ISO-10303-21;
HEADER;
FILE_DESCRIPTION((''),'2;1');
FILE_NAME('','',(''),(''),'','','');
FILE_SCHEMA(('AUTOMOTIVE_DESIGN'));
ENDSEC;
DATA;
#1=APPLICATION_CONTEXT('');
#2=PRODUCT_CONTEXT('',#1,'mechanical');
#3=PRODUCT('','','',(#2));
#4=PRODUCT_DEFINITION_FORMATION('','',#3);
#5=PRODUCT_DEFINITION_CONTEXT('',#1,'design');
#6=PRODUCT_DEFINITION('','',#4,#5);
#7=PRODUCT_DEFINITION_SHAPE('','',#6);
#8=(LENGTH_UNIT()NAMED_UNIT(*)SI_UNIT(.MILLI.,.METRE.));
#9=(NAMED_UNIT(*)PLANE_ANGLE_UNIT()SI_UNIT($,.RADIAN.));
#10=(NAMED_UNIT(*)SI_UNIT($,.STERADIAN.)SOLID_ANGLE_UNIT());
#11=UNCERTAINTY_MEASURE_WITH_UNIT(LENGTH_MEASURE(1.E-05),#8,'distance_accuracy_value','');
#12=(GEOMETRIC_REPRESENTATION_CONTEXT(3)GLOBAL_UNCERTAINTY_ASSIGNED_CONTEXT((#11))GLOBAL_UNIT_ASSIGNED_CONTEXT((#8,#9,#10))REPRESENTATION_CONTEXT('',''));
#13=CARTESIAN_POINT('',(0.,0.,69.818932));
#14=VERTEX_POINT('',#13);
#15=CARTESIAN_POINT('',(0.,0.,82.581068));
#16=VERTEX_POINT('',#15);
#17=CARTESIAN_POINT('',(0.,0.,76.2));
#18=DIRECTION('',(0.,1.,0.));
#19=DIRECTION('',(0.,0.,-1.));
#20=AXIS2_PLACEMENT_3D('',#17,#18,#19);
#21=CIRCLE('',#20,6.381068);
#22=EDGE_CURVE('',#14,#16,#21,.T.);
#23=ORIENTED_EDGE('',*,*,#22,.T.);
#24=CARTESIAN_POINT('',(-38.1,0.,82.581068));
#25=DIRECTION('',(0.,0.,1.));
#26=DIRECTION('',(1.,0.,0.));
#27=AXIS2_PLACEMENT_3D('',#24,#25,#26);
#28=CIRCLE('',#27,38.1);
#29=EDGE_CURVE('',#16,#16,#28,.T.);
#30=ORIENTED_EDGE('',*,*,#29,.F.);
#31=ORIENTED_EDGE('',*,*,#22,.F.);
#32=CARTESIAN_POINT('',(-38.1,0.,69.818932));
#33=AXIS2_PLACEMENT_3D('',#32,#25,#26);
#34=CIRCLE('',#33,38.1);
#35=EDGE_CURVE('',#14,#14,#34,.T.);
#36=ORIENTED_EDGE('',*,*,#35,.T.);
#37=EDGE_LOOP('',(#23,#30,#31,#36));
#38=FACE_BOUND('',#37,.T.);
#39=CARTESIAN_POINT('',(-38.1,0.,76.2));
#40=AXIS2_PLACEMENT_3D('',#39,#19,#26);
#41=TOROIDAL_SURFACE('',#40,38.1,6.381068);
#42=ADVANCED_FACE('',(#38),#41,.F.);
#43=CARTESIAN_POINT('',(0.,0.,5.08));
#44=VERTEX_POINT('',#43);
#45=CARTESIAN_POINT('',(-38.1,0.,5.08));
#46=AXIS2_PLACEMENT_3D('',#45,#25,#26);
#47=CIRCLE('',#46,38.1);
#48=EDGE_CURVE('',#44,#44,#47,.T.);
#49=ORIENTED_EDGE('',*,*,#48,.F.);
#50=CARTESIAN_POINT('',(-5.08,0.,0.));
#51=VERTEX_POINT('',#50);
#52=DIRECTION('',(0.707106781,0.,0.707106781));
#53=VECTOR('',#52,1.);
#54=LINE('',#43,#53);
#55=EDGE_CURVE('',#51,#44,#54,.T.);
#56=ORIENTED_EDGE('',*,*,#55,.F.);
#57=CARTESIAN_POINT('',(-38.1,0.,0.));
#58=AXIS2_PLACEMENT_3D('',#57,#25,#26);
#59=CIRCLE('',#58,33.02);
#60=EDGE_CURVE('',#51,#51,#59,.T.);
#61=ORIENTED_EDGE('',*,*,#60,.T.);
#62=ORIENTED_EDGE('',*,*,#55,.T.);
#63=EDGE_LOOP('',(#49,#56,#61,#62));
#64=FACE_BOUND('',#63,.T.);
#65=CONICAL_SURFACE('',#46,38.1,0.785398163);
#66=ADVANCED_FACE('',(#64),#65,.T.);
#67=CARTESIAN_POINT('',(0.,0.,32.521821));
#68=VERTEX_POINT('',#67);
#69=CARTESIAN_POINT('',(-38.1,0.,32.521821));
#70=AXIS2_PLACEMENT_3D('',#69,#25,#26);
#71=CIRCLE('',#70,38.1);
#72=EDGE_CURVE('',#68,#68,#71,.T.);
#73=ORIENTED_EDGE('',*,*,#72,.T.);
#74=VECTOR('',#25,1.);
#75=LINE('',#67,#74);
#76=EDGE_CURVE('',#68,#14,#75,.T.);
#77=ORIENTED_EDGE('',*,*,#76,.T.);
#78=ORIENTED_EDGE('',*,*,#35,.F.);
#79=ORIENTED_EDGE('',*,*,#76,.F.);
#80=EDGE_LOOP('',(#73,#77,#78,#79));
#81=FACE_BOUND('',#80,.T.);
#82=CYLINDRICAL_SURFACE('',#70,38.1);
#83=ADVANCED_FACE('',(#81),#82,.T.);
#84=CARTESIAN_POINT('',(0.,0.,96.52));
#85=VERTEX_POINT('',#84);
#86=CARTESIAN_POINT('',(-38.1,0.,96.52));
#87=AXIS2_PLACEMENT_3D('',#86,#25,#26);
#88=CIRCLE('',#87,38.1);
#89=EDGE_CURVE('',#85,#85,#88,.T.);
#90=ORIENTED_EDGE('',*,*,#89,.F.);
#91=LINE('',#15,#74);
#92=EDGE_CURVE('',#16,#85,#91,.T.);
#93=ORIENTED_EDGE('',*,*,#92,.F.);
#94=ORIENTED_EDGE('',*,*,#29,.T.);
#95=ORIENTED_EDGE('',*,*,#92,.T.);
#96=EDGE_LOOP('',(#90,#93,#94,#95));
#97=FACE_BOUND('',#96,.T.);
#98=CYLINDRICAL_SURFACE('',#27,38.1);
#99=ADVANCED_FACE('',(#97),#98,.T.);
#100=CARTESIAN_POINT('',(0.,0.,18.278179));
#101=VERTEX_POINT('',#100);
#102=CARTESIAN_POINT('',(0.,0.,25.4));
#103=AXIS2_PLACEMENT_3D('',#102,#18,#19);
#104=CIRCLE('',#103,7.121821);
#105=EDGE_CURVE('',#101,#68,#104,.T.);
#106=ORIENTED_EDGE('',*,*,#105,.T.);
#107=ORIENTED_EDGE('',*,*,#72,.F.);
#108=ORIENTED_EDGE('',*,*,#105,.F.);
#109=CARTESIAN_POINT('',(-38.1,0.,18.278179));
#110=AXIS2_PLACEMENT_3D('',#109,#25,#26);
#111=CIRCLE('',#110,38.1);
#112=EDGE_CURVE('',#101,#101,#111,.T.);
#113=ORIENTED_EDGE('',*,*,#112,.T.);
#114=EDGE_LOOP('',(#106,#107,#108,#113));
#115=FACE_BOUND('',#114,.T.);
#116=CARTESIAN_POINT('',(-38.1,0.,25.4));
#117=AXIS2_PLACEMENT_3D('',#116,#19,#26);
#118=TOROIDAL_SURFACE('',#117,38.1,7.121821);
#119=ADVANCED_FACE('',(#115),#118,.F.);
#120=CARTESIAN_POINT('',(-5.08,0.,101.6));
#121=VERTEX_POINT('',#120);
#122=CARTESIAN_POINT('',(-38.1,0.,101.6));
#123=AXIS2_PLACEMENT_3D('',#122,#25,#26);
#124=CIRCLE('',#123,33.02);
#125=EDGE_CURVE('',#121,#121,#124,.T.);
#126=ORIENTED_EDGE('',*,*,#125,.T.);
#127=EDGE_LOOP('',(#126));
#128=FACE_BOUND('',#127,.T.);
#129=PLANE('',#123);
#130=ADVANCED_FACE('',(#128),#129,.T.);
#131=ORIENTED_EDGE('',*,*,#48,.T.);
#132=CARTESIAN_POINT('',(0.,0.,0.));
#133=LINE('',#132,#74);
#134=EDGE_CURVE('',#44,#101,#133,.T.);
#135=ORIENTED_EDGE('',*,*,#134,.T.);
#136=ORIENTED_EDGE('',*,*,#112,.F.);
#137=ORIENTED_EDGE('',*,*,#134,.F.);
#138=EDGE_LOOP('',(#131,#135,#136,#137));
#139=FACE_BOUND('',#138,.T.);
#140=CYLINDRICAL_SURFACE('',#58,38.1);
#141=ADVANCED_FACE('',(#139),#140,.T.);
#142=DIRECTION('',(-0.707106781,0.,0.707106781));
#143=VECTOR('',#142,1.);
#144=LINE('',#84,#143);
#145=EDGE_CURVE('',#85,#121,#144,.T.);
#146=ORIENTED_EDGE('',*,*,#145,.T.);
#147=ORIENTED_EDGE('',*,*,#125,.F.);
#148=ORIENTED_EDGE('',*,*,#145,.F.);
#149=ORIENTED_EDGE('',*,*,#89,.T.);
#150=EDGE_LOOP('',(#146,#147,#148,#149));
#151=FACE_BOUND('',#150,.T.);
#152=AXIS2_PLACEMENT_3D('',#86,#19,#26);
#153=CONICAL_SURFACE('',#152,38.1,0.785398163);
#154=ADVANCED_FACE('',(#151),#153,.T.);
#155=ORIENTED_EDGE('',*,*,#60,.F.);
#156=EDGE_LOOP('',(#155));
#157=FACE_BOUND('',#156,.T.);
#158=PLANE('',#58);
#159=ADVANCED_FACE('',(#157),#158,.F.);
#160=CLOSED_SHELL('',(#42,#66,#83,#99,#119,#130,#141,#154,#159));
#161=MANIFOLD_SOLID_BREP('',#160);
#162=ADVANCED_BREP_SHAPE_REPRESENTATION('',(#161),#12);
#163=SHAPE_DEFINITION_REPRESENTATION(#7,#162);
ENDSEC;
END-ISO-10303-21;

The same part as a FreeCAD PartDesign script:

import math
import FreeCAD as App
import Part
import Sketcher

V = App.Vector
Q = App.Units.Quantity


def edges_at(feature, points):
    """Names of the edges that pass closest to the given points."""
    edges = feature.Shape.Edges
    near = lambda p: min(range(len(edges)), key=lambda i: edges[i].distToShape(Part.Vertex(*p))[0])
    return sorted({f"Edge{near(p) + 1}" for p in points})

doc = App.newDocument("Part")
params = doc.addObject("Spreadsheet::Sheet", "Params")
for row, (alias, value) in enumerate([
    ("sketch1_height", "4 in"),
    ("sketch1_width", "1.5 in"),
    ("revolution_angle", "360 deg"),
    ("chamfer_size", "0.2 in"),
], start=1):
    params.set(f"A{row}", alias)
    params.set(f"B{row}", "=" + value)
    params.setAlias(f"B{row}", alias)

body = doc.addObject("PartDesign::Body", "Body")

# Sketch on XZ plane
sketch1 = body.newObject("Sketcher::SketchObject", "Sketch")
sketch1.AttachmentSupport = (doc.getObject("XZ_Plane"), [""])
sketch1.MapMode = "FlatFace"
sketch1.addGeometry(Part.LineSegment(V(-38, 0, 0), V(0, 0, 0)), False)
sketch1.addGeometry(Part.LineSegment(V(0, 0, 0), V(0, 18, 0)), False)
sketch1.addGeometry(Part.ArcOfCircle(Part.Circle(V(0, 25, 0), V(0, 0, 1), 7), math.radians(90), math.radians(270)), False)
sketch1.addGeometry(Part.LineSegment(V(0, 33, 0), V(0, 70, 0)), False)
sketch1.addGeometry(Part.ArcOfCircle(Part.Circle(V(0, 76, 0), V(0, 0, 1), 6), math.radians(90), math.radians(270)), False)
sketch1.addGeometry(Part.LineSegment(V(0, 83, 0), V(0, 102, 0)), False)
sketch1.addGeometry(Part.LineSegment(V(0, 102, 0), V(-38, 102, 0)), False)
sketch1.addGeometry(Part.LineSegment(V(-38, 102, 0), V(-38, 0, 0)), False)
sketch1.addGeometry(Part.LineSegment(V(-38, 0, 0), V(-38, 102, 0)), True)  # axis
sketch1.addConstraint(Sketcher.Constraint("Coincident", 0, 2, 1, 1))
sketch1.addConstraint(Sketcher.Constraint("Coincident", 1, 2, 2, 2))
sketch1.addConstraint(Sketcher.Constraint("Coincident", 2, 1, 3, 1))
sketch1.addConstraint(Sketcher.Constraint("Coincident", 3, 2, 4, 2))
sketch1.addConstraint(Sketcher.Constraint("Coincident", 4, 1, 5, 1))
sketch1.addConstraint(Sketcher.Constraint("Coincident", 5, 2, 6, 1))
sketch1.addConstraint(Sketcher.Constraint("Coincident", 6, 2, 7, 1))
sketch1.addConstraint(Sketcher.Constraint("Coincident", 7, 2, 0, 1))
sketch1.addConstraint(Sketcher.Constraint("Horizontal", 0))
sketch1.addConstraint(Sketcher.Constraint("Vertical", 1))
sketch1.addConstraint(Sketcher.Constraint("Vertical", 3))
sketch1.addConstraint(Sketcher.Constraint("Vertical", 5))
sketch1.addConstraint(Sketcher.Constraint("Horizontal", 6))
sketch1.addConstraint(Sketcher.Constraint("Vertical", 7))
sketch1.addConstraint(Sketcher.Constraint("Vertical", 8))
sketch1.addConstraint(Sketcher.Constraint("Coincident", 0, 2, -1, 1))
sketch1.addConstraint(Sketcher.Constraint("Coincident", 8, 1, 7, 2))
sketch1.addConstraint(Sketcher.Constraint("PointOnObject", 2, 3, -2))
sketch1.addConstraint(Sketcher.Constraint("PointOnObject", 4, 3, -2))
sketch1.addConstraint(Sketcher.Constraint("PointOnObject", 2, 1, -2))
sketch1.addConstraint(Sketcher.Constraint("PointOnObject", 4, 1, -2))
sketch1.addConstraint(Sketcher.Constraint("Horizontal", 5, 2, 8, 2))
sketch1.addConstraint(Sketcher.Constraint("DistanceY", 7, 2, 7, 1, Q("4 in")))
sketch1.addConstraint(Sketcher.Constraint("DistanceX", 0, 1, 0, 2, Q("1.5 in")))
sketch1.addConstraint(Sketcher.Constraint("DistanceY", -1, 1, 2, 3, Q("1 in")))
sketch1.addConstraint(Sketcher.Constraint("DistanceY", -1, 1, 4, 3, Q("3 in")))
sketch1.addConstraint(Sketcher.Constraint("Radius", 2, Q("7.121821 mm")))
sketch1.addConstraint(Sketcher.Constraint("Radius", 4, Q("6.381068 mm")))
sketch1.setExpression("Constraints[22]", "Params.sketch1_height")
sketch1.setExpression("Constraints[23]", "Params.sketch1_width")
revolution = body.newObject("PartDesign::Revolution", "Revolution")
revolution.Profile = sketch1
revolution.ReferenceAxis = (sketch1, ["Axis0"])
revolution.setExpression("Angle", "Params.revolution_angle")
doc.recompute()

chamfer = body.newObject("PartDesign::Chamfer", "Chamfer")
chamfer.Base = (revolution, edges_at(revolution, [(-76.2, 0, 101.6), (-76.2, 0, 0)]))
chamfer.setExpression("Size", "Params.chamfer_size")

doc.recompute()
